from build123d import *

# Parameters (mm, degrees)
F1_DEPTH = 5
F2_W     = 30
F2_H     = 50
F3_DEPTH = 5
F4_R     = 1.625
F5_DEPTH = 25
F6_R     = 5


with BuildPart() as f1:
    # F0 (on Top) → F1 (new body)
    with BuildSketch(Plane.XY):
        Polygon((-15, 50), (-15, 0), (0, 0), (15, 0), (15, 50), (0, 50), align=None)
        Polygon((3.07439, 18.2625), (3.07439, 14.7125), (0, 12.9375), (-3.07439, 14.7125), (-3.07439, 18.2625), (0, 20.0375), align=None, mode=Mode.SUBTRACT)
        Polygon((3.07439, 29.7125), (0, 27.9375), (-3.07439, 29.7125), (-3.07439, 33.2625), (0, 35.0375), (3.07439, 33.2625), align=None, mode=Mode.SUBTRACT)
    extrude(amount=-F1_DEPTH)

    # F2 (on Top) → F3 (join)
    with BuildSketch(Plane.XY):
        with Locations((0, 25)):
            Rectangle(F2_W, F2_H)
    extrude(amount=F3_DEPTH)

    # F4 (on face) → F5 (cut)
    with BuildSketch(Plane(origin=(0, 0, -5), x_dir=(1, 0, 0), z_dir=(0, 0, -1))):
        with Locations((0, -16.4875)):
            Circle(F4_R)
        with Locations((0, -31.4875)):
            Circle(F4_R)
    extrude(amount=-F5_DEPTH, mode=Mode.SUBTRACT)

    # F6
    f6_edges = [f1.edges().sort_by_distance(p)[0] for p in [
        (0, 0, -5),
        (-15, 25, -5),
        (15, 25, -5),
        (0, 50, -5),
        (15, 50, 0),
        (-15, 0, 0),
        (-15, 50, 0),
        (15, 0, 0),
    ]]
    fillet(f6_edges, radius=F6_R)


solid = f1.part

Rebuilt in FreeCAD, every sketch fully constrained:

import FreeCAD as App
import Part
import Sketcher
Q = App.Units.Quantity


def edges_at(feature, points):
    """Names of the edges that pass closest to the given points."""
    edges = feature.Shape.Edges
    near = lambda p: min(range(len(edges)), key=lambda i: edges[i].distToShape(Part.Vertex(*p))[0])
    return sorted({f"Edge{near(p) + 1}" for p in points})


def add_polygon(sketch, points):
    """Adds a closed chain of lines whose ends are joined by coincident constraints."""
    first, n = sketch.GeometryCount, len(points)
    for a, b in zip(points, points[1:] + points[:1]):
        sketch.addGeometry(Part.LineSegment(App.Vector(*a, 0), App.Vector(*b, 0)), False)
    for i in range(n):
        sketch.addConstraint(Sketcher.Constraint("Coincident", first + i, 2, first + (i + 1) % n, 1))

doc = App.newDocument("Part")
params = doc.addObject("Spreadsheet::Sheet", "Params")
for row, (alias, value) in enumerate([
    ("sketch1_width", "30 mm"),
    ("sketch1_height", "50 mm"),
    ("sketch1_height2", "3.55 mm"),
    ("pad1_length", "5 mm"),
    ("sketch2_width", "30 mm"),
    ("sketch2_height", "50 mm"),
    ("pad2_length", "5 mm"),
    ("sketch3_diameter", "3.25 mm"),
    ("pocket1_length", "25 mm"),
    ("fillet_radius", "5 mm"),
], start=1):
    params.set(f"A{row}", alias)
    params.set(f"B{row}", "=" + value)
    params.setAlias(f"B{row}", alias)

body = doc.addObject("PartDesign::Body", "Body")

# Sketch on XY plane
sketch1 = body.newObject("Sketcher::SketchObject", "Sketch")
sketch1.AttachmentSupport = (doc.getObject("XY_Plane"), [""])
sketch1.MapMode = "FlatFace"
add_polygon(sketch1, [(-15, 50), (-15, 0), (15, 0), (15, 50)])  # lines 0-3
add_polygon(sketch1, [(0, 20), (3.1, 18.3), (3.1, 14.7), (0, 12.9), (-3.1, 14.7), (-3.1, 18.3)])  # lines 4-9
add_polygon(sketch1, [(3.1, 33.3), (3.1, 29.7), (0, 27.9), (-3.1, 29.7), (-3.1, 33.3), (0, 35)])  # lines 10-15
sketch1.addConstraint([
    Sketcher.Constraint("Vertical", 0),
    Sketcher.Constraint("Horizontal", 1),
    Sketcher.Constraint("Vertical", 2),
    Sketcher.Constraint("Horizontal", 3),
    Sketcher.Constraint("Vertical", 5),
    Sketcher.Constraint("Vertical", 8),
    Sketcher.Constraint("Vertical", 10),
    Sketcher.Constraint("Vertical", 13),
    Sketcher.Constraint("Symmetric", 0, 2, 1, 2, -1, 1),
    Sketcher.Constraint("Symmetric", 5, 2, 7, 2, -2),
    Sketcher.Constraint("Symmetric", 10, 2, 12, 2, -2),
    Sketcher.Constraint("PointOnObject", 6, 2, -2),
    Sketcher.Constraint("PointOnObject", 9, 2, -2),
    Sketcher.Constraint("PointOnObject", 11, 2, -2),
    Sketcher.Constraint("PointOnObject", 14, 2, -2),
    Sketcher.Constraint("Parallel", 4, 7),
    Sketcher.Constraint("Parallel", 6, 9),
    Sketcher.Constraint("Parallel", 9, 11),
    Sketcher.Constraint("Parallel", 11, 14),
    Sketcher.Constraint("Parallel", 12, 15),
    Sketcher.Constraint("Vertical", 5, 2, 10, 2),
    Sketcher.Constraint("Equal", 8, 10),
    Sketcher.Constraint("DistanceX", 1, 1, 1, 2, 30.0),
    Sketcher.Constraint("DistanceY", 0, 2, 0, 1, 50.0),
    Sketcher.Constraint("Angle", 4, Q("-30.000001 deg")),
    Sketcher.Constraint("DistanceY", 5, 2, 10, 2, 15.0),
    Sketcher.Constraint("DistanceY", 5, 2, 5, 1, 3.55),
    Sketcher.Constraint("DistanceY", 6, 2, 9, 2, 7.1),
    Sketcher.Constraint("DistanceY", -1, 1, 4, 2, 18.2625),
])
sketch1.setExpression("Constraints[38]", "Params.sketch1_width")
sketch1.setExpression("Constraints[39]", "Params.sketch1_height")
sketch1.setExpression("Constraints[42]", "Params.sketch1_height2")
pad1 = body.newObject("PartDesign::Pad", "Pad")
pad1.Profile = sketch1
pad1.setExpression("Length", "Params.pad1_length")
pad1.Reversed = True

# Sketch on XY plane
sketch2 = body.newObject("Sketcher::SketchObject", "Sketch001")
sketch2.AttachmentSupport = (doc.getObject("XY_Plane"), [""])
sketch2.MapMode = "FlatFace"
add_polygon(sketch2, [(-15, 50), (-15, 0), (15, 0), (15, 50)])  # lines 0-3
sketch2.addConstraint([
    Sketcher.Constraint("Vertical", 0),
    Sketcher.Constraint("Horizontal", 1),
    Sketcher.Constraint("Vertical", 2),
    Sketcher.Constraint("Horizontal", 3),
    Sketcher.Constraint("Symmetric", 0, 2, 1, 2, -1, 1),
    Sketcher.Constraint("DistanceX", 1, 1, 1, 2, 30.0),
    Sketcher.Constraint("DistanceY", 0, 2, 0, 1, 50.0),
])
sketch2.setExpression("Constraints[9]", "Params.sketch2_width")
sketch2.setExpression("Constraints[10]", "Params.sketch2_height")
pad2 = body.newObject("PartDesign::Pad", "Pad001")
pad2.Profile = sketch2
pad2.setExpression("Length", "Params.pad2_length")

# Sketch on XY plane
sketch3 = body.newObject("Sketcher::SketchObject", "Sketch002")
sketch3.AttachmentSupport = (doc.getObject("XY_Plane"), [""])
sketch3.MapMode = "FlatFace"
sketch3.AttachmentOffset = App.Placement(App.Vector(0, 0, -5), App.Rotation())
sketch3.addGeometry([
    Part.Circle(App.Vector(0, 16.5, 0), App.Vector(0, 0, 1), 1.6),
    Part.Circle(App.Vector(0, 31.5, 0), App.Vector(0, 0, 1), 1.6),
], False)
sketch3.addConstraint([
    Sketcher.Constraint("Equal", 0, 1),
    Sketcher.Constraint("PointOnObject", 0, 3, -2),
    Sketcher.Constraint("PointOnObject", 1, 3, -2),
    Sketcher.Constraint("Diameter", 0, 3.25),
    Sketcher.Constraint("DistanceY", 0, 3, 1, 3, 15.0),
    Sketcher.Constraint("DistanceY", -1, 1, 0, 3, 16.4875),
])
sketch3.setExpression("Constraints[3]", "Params.sketch3_diameter")
pocket1 = body.newObject("PartDesign::Pocket", "Pocket")
pocket1.Profile = sketch3
pocket1.setExpression("Length", "Params.pocket1_length")
pocket1.Reversed = True
doc.recompute()

fillet = body.newObject("PartDesign::Fillet", "Fillet")
fillet.Base = (pocket1, edges_at(pocket1, [
    (0, 0, -5),
    (-15, 25, -5),
    (15, 25, -5),
    (0, 50, -5),
    (15, 50, 0),
    (-15, 0, 0),
    (-15, 50, 0),
    (15, 0, 0),
]))
fillet.setExpression("Radius", "Params.fillet_radius")

doc.recompute()
